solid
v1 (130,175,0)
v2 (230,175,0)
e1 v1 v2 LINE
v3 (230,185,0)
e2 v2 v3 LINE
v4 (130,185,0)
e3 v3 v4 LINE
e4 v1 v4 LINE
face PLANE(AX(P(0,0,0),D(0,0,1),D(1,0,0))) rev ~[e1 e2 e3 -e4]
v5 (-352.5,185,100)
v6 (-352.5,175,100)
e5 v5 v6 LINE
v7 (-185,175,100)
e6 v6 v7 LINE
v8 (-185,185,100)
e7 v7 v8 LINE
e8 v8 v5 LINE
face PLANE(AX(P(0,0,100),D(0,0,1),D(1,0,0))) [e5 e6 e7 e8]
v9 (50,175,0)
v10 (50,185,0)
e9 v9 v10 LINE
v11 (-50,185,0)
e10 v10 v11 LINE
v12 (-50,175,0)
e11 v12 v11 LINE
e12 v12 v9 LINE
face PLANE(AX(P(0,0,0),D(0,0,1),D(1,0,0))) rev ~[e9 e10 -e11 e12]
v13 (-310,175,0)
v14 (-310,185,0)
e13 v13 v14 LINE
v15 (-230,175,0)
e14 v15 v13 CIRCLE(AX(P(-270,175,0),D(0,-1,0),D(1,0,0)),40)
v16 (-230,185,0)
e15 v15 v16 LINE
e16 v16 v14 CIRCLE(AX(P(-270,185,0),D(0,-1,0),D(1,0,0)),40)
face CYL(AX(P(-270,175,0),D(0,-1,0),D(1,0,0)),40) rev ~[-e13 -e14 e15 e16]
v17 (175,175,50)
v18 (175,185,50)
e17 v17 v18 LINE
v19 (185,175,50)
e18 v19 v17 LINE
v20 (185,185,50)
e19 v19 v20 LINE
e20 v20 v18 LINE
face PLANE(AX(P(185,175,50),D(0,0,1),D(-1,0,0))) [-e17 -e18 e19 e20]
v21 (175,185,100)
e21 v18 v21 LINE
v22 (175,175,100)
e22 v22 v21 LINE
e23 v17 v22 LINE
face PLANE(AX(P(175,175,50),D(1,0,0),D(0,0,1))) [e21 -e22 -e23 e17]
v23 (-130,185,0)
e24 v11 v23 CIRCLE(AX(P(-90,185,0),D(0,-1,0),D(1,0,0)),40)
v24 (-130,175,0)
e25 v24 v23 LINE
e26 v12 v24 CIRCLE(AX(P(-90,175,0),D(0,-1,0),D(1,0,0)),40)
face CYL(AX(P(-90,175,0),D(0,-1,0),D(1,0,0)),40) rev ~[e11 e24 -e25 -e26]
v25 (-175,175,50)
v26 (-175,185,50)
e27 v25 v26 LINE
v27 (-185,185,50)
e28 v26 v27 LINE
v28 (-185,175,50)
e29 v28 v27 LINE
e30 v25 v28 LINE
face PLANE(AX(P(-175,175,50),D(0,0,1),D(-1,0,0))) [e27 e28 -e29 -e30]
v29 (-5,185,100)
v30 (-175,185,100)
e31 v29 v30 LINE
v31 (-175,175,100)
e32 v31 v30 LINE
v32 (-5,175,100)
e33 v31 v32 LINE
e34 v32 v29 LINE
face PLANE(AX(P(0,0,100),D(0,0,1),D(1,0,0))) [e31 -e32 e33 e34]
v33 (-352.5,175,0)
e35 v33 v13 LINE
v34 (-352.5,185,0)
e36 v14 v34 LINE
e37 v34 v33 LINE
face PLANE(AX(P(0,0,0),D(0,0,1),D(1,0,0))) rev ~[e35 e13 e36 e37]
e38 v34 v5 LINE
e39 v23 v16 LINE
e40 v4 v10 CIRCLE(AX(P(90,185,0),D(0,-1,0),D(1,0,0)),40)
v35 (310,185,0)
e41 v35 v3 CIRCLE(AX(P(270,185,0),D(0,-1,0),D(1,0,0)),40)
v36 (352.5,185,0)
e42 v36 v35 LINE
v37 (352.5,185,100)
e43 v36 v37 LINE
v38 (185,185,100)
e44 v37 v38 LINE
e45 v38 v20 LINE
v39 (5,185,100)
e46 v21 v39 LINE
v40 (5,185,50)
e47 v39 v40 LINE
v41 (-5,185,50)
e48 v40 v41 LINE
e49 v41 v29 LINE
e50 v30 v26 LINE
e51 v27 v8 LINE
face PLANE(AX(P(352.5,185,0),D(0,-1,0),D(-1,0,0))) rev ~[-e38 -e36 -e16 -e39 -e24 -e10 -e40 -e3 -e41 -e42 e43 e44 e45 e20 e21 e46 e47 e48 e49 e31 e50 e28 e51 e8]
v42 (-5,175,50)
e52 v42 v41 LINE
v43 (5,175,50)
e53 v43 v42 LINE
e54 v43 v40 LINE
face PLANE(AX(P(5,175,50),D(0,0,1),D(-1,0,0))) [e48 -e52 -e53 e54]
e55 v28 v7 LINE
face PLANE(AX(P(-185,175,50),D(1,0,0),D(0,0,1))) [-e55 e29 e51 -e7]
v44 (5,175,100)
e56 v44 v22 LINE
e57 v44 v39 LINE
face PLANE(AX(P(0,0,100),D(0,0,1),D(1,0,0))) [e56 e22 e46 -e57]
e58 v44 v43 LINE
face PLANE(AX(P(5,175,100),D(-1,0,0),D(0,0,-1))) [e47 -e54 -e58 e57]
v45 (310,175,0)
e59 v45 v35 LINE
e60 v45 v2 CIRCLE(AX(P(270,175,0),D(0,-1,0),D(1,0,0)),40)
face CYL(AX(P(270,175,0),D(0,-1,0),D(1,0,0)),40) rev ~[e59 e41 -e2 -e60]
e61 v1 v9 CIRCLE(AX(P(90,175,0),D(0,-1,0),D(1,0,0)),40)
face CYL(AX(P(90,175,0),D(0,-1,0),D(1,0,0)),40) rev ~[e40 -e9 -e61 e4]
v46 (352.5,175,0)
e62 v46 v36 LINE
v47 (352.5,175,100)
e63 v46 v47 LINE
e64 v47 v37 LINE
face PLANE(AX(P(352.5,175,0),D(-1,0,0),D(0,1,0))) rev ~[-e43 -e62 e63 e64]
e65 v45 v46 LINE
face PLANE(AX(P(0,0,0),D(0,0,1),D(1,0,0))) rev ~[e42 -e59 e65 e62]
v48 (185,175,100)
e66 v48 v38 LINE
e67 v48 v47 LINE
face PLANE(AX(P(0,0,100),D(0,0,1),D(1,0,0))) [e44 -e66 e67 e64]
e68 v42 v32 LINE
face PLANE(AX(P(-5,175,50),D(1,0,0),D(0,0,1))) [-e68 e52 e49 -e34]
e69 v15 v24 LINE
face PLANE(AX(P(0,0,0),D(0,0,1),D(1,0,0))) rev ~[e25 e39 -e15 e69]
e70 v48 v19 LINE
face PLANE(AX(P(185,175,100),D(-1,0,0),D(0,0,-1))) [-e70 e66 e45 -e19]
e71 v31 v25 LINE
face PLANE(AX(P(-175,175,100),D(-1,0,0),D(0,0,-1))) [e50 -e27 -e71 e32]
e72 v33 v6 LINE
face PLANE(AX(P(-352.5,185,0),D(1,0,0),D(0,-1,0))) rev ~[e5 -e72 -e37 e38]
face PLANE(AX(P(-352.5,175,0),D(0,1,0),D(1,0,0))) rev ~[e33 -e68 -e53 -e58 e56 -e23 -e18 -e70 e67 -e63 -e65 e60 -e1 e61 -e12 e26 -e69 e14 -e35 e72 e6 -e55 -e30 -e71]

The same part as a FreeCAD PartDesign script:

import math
import FreeCAD as App
import Part
import Sketcher
from FreeCAD import Vector
Q = App.Units.Quantity

doc = App.newDocument("Part")
body = doc.addObject("PartDesign::Body", "Body")

# Sketch on XY plane
sketch1 = body.newObject("Sketcher::SketchObject", "Sketch")
sketch1.AttachmentSupport = (doc.getObject("XY_Plane"), [""])
sketch1.MapMode = "FlatFace"
sketch1.addGeometry(Part.LineSegment(Vector(-352.5, 185, 0), Vector(-352.5, 175, 0)), False)
sketch1.addGeometry(Part.LineSegment(Vector(-352.5, 175, 0), Vector(352.5, 175, 0)), False)
sketch1.addGeometry(Part.LineSegment(Vector(352.5, 175, 0), Vector(352.5, 185, 0)), False)
sketch1.addGeometry(Part.LineSegment(Vector(352.5, 185, 0), Vector(-352.5, 185, 0)), False)
sketch1.addConstraint(Sketcher.Constraint("Coincident", 0, 2, 1, 1))
sketch1.addConstraint(Sketcher.Constraint("Coincident", 1, 2, 2, 1))
sketch1.addConstraint(Sketcher.Constraint("Coincident", 2, 2, 3, 1))
sketch1.addConstraint(Sketcher.Constraint("Coincident", 3, 2, 0, 1))
sketch1.addConstraint(Sketcher.Constraint("Vertical", 0))
sketch1.addConstraint(Sketcher.Constraint("Horizontal", 1))
sketch1.addConstraint(Sketcher.Constraint("Vertical", 2))
sketch1.addConstraint(Sketcher.Constraint("Horizontal", 3))
sketch1.addConstraint(Sketcher.Constraint("DistanceX", 1, 1, 1, 2, Q("705 mm")))
sketch1.addConstraint(Sketcher.Constraint("DistanceY", 0, 2, 0, 1, Q("10 mm")))
sketch1.addConstraint(Sketcher.Constraint("DistanceY", -1, 1, 0, 2, Q("175 mm")))
sketch1.addConstraint(Sketcher.Constraint("DistanceX", 0, 2, -1, 1, Q("352.5 mm")))
pad1 = body.newObject("PartDesign::Pad", "Pad")
pad1.Profile = sketch1
pad1.Length = 100

# Sketch on XZ plane
sketch2 = body.newObject("Sketcher::SketchObject", "Sketch001")
sketch2.AttachmentSupport = (doc.getObject("XZ_Plane"), [""])
sketch2.MapMode = "FlatFace"
sketch2.AttachmentOffset = App.Placement(Vector(0, 0, -175), App.Rotation())
sketch2.addGeometry(Part.LineSegment(Vector(230, 0, 0), Vector(310, 0, 0)), False)
sketch2.addGeometry(Part.ArcOfCircle(Part.Circle(Vector(270, 0, 0), Vector(0, 0, 1), 40), math.radians(0), math.radians(180)), False)
sketch2.addGeometry(Part.LineSegment(Vector(-310, 0, 0), Vector(-230, 0, 0)), False)
sketch2.addGeometry(Part.ArcOfCircle(Part.Circle(Vector(-270, 0, 0), Vector(0, 0, 1), 40), math.radians(0), math.radians(180)), False)
sketch2.addGeometry(Part.LineSegment(Vector(-130, 0, 0), Vector(-50, 0, 0)), False)
sketch2.addGeometry(Part.ArcOfCircle(Part.Circle(Vector(-90, 0, 0), Vector(0, 0, 1), 40), math.radians(0), math.radians(180)), False)
sketch2.addGeometry(Part.LineSegment(Vector(50, 0, 0), Vector(130, 0, 0)), False)
sketch2.addGeometry(Part.ArcOfCircle(Part.Circle(Vector(90, 0, 0), Vector(0, 0, 1), 40), math.radians(0), math.radians(180)), False)
sketch2.addGeometry(Part.LineSegment(Vector(185, 100, 0), Vector(175, 100, 0)), False)
sketch2.addGeometry(Part.LineSegment(Vector(175, 100, 0), Vector(175, 50, 0)), False)
sketch2.addGeometry(Part.LineSegment(Vector(175, 50, 0), Vector(185, 50, 0)), False)
sketch2.addGeometry(Part.LineSegment(Vector(185, 50, 0), Vector(185, 100, 0)), False)
sketch2.addGeometry(Part.LineSegment(Vector(5, 100, 0), Vector(-5, 100, 0)), False)
sketch2.addGeometry(Part.LineSegment(Vector(-5, 100, 0), Vector(-5, 50, 0)), False)
sketch2.addGeometry(Part.LineSegment(Vector(-5, 50, 0), Vector(5, 50, 0)), False)
sketch2.addGeometry(Part.LineSegment(Vector(5, 50, 0), Vector(5, 100, 0)), False)
sketch2.addGeometry(Part.LineSegment(Vector(-175, 50, 0), Vector(-175, 100, 0)), False)
sketch2.addGeometry(Part.LineSegment(Vector(-175, 100, 0), Vector(-185, 100, 0)), False)
sketch2.addGeometry(Part.LineSegment(Vector(-185, 100, 0), Vector(-185, 50, 0)), False)
sketch2.addGeometry(Part.LineSegment(Vector(-185, 50, 0), Vector(-175, 50, 0)), False)
sketch2.addConstraint(Sketcher.Constraint("Coincident", 0, 1, 1, 2))
sketch2.addConstraint(Sketcher.Constraint("Coincident", 1, 1, 0, 2))
sketch2.addConstraint(Sketcher.Constraint("Coincident", 2, 1, 3, 2))
sketch2.addConstraint(Sketcher.Constraint("Coincident", 3, 1, 2, 2))
sketch2.addConstraint(Sketcher.Constraint("Coincident", 4, 1, 5, 2))
sketch2.addConstraint(Sketcher.Constraint("Coincident", 5, 1, 4, 2))
sketch2.addConstraint(Sketcher.Constraint("Coincident", 6, 1, 7, 2))
sketch2.addConstraint(Sketcher.Constraint("Coincident", 7, 1, 6, 2))
sketch2.addConstraint(Sketcher.Constraint("Coincident", 8, 2, 9, 1))
sketch2.addConstraint(Sketcher.Constraint("Coincident", 9, 2, 10, 1))
sketch2.addConstraint(Sketcher.Constraint("Coincident", 10, 2, 11, 1))
sketch2.addConstraint(Sketcher.Constraint("Coincident", 11, 2, 8, 1))
sketch2.addConstraint(Sketcher.Constraint("Coincident", 12, 2, 13, 1))
sketch2.addConstraint(Sketcher.Constraint("Coincident", 13, 2, 14, 1))
sketch2.addConstraint(Sketcher.Constraint("Coincident", 14, 2, 15, 1))
sketch2.addConstraint(Sketcher.Constraint("Coincident", 15, 2, 12, 1))
sketch2.addConstraint(Sketcher.Constraint("Coincident", 16, 2, 17, 1))
sketch2.addConstraint(Sketcher.Constraint("Coincident", 17, 2, 18, 1))
sketch2.addConstraint(Sketcher.Constraint("Coincident", 18, 2, 19, 1))
sketch2.addConstraint(Sketcher.Constraint("Coincident", 19, 2, 16, 1))
sketch2.addConstraint(Sketcher.Constraint("Horizontal", 0))
sketch2.addConstraint(Sketcher.Constraint("Horizontal", 2))
sketch2.addConstraint(Sketcher.Constraint("Horizontal", 4))
sketch2.addConstraint(Sketcher.Constraint("Horizontal", 6))
sketch2.addConstraint(Sketcher.Constraint("Horizontal", 8))
sketch2.addConstraint(Sketcher.Constraint("Vertical", 9))
sketch2.addConstraint(Sketcher.Constraint("Horizontal", 10))
sketch2.addConstraint(Sketcher.Constraint("Vertical", 11))
sketch2.addConstraint(Sketcher.Constraint("Horizontal", 12))
sketch2.addConstraint(Sketcher.Constraint("Vertical", 13))
sketch2.addConstraint(Sketcher.Constraint("Horizontal", 14))
sketch2.addConstraint(Sketcher.Constraint("Vertical", 15))
sketch2.addConstraint(Sketcher.Constraint("Vertical", 16))
sketch2.addConstraint(Sketcher.Constraint("Horizontal", 17))
sketch2.addConstraint(Sketcher.Constraint("Vertical", 18))
sketch2.addConstraint(Sketcher.Constraint("Horizontal", 19))
sketch2.addConstraint(Sketcher.Constraint("Equal", 1, 3))
sketch2.addConstraint(Sketcher.Constraint("Equal", 3, 5))
sketch2.addConstraint(Sketcher.Constraint("Equal", 5, 7))
sketch2.addConstraint(Sketcher.Constraint("Symmetric", 1, 3, 3, 3, -1, 1))
sketch2.addConstraint(Sketcher.Constraint("Symmetric", 5, 3, 7, 3, -1, 1))
sketch2.addConstraint(Sketcher.Constraint("Symmetric", 8, 2, 16, 2, -2))
sketch2.addConstraint(Sketcher.Constraint("Symmetric", 10, 2, 18, 2, -2))
sketch2.addConstraint(Sketcher.Constraint("PointOnObject", 1, 3, -1))
sketch2.addConstraint(Sketcher.Constraint("PointOnObject", 5, 3, -1))
sketch2.addConstraint(Sketcher.Constraint("PointOnObject", 0, 1, -1))
sketch2.addConstraint(Sketcher.Constraint("PointOnObject", 2, 1, -1))
sketch2.addConstraint(Sketcher.Constraint("PointOnObject", 4, 1, -1))
sketch2.addConstraint(Sketcher.Constraint("PointOnObject", 6, 1, -1))
sketch2.addConstraint(Sketcher.Constraint("Horizontal", 11, 2, 12, 2))
sketch2.addConstraint(Sketcher.Constraint("Horizontal", 10, 2, 13, 2))
sketch2.addConstraint(Sketcher.Constraint("Equal", 10, 12))
sketch2.addConstraint(Sketcher.Constraint("Radius", 1, Q("40 mm")))
sketch2.addConstraint(Sketcher.Constraint("DistanceX", 8, 2, 8, 1, Q("10 mm")))
sketch2.addConstraint(Sketcher.Constraint("DistanceY", 9, 2, 9, 1, Q("50 mm")))
sketch2.addConstraint(Sketcher.Constraint("DistanceX", 5, 3, -1, 1, Q("90 mm")))
sketch2.addConstraint(Sketcher.Constraint("DistanceY", -1, 1, 9, 2, Q("50 mm")))
sketch2.addConstraint(Sketcher.Constraint("DistanceX", 3, 3, 5, 3, Q("180 mm")))
sketch2.addConstraint(Sketcher.Constraint("DistanceX", -1, 1, 8, 2, Q("175 mm")))
sketch2.addConstraint(Sketcher.Constraint("DistanceX", 12, 2, -1, 1, Q("5 mm")))
pocket1 = body.newObject("PartDesign::Pocket", "Pocket")
pocket1.Profile = sketch2
pocket1.Type = "ThroughAll"

doc.recompute()
